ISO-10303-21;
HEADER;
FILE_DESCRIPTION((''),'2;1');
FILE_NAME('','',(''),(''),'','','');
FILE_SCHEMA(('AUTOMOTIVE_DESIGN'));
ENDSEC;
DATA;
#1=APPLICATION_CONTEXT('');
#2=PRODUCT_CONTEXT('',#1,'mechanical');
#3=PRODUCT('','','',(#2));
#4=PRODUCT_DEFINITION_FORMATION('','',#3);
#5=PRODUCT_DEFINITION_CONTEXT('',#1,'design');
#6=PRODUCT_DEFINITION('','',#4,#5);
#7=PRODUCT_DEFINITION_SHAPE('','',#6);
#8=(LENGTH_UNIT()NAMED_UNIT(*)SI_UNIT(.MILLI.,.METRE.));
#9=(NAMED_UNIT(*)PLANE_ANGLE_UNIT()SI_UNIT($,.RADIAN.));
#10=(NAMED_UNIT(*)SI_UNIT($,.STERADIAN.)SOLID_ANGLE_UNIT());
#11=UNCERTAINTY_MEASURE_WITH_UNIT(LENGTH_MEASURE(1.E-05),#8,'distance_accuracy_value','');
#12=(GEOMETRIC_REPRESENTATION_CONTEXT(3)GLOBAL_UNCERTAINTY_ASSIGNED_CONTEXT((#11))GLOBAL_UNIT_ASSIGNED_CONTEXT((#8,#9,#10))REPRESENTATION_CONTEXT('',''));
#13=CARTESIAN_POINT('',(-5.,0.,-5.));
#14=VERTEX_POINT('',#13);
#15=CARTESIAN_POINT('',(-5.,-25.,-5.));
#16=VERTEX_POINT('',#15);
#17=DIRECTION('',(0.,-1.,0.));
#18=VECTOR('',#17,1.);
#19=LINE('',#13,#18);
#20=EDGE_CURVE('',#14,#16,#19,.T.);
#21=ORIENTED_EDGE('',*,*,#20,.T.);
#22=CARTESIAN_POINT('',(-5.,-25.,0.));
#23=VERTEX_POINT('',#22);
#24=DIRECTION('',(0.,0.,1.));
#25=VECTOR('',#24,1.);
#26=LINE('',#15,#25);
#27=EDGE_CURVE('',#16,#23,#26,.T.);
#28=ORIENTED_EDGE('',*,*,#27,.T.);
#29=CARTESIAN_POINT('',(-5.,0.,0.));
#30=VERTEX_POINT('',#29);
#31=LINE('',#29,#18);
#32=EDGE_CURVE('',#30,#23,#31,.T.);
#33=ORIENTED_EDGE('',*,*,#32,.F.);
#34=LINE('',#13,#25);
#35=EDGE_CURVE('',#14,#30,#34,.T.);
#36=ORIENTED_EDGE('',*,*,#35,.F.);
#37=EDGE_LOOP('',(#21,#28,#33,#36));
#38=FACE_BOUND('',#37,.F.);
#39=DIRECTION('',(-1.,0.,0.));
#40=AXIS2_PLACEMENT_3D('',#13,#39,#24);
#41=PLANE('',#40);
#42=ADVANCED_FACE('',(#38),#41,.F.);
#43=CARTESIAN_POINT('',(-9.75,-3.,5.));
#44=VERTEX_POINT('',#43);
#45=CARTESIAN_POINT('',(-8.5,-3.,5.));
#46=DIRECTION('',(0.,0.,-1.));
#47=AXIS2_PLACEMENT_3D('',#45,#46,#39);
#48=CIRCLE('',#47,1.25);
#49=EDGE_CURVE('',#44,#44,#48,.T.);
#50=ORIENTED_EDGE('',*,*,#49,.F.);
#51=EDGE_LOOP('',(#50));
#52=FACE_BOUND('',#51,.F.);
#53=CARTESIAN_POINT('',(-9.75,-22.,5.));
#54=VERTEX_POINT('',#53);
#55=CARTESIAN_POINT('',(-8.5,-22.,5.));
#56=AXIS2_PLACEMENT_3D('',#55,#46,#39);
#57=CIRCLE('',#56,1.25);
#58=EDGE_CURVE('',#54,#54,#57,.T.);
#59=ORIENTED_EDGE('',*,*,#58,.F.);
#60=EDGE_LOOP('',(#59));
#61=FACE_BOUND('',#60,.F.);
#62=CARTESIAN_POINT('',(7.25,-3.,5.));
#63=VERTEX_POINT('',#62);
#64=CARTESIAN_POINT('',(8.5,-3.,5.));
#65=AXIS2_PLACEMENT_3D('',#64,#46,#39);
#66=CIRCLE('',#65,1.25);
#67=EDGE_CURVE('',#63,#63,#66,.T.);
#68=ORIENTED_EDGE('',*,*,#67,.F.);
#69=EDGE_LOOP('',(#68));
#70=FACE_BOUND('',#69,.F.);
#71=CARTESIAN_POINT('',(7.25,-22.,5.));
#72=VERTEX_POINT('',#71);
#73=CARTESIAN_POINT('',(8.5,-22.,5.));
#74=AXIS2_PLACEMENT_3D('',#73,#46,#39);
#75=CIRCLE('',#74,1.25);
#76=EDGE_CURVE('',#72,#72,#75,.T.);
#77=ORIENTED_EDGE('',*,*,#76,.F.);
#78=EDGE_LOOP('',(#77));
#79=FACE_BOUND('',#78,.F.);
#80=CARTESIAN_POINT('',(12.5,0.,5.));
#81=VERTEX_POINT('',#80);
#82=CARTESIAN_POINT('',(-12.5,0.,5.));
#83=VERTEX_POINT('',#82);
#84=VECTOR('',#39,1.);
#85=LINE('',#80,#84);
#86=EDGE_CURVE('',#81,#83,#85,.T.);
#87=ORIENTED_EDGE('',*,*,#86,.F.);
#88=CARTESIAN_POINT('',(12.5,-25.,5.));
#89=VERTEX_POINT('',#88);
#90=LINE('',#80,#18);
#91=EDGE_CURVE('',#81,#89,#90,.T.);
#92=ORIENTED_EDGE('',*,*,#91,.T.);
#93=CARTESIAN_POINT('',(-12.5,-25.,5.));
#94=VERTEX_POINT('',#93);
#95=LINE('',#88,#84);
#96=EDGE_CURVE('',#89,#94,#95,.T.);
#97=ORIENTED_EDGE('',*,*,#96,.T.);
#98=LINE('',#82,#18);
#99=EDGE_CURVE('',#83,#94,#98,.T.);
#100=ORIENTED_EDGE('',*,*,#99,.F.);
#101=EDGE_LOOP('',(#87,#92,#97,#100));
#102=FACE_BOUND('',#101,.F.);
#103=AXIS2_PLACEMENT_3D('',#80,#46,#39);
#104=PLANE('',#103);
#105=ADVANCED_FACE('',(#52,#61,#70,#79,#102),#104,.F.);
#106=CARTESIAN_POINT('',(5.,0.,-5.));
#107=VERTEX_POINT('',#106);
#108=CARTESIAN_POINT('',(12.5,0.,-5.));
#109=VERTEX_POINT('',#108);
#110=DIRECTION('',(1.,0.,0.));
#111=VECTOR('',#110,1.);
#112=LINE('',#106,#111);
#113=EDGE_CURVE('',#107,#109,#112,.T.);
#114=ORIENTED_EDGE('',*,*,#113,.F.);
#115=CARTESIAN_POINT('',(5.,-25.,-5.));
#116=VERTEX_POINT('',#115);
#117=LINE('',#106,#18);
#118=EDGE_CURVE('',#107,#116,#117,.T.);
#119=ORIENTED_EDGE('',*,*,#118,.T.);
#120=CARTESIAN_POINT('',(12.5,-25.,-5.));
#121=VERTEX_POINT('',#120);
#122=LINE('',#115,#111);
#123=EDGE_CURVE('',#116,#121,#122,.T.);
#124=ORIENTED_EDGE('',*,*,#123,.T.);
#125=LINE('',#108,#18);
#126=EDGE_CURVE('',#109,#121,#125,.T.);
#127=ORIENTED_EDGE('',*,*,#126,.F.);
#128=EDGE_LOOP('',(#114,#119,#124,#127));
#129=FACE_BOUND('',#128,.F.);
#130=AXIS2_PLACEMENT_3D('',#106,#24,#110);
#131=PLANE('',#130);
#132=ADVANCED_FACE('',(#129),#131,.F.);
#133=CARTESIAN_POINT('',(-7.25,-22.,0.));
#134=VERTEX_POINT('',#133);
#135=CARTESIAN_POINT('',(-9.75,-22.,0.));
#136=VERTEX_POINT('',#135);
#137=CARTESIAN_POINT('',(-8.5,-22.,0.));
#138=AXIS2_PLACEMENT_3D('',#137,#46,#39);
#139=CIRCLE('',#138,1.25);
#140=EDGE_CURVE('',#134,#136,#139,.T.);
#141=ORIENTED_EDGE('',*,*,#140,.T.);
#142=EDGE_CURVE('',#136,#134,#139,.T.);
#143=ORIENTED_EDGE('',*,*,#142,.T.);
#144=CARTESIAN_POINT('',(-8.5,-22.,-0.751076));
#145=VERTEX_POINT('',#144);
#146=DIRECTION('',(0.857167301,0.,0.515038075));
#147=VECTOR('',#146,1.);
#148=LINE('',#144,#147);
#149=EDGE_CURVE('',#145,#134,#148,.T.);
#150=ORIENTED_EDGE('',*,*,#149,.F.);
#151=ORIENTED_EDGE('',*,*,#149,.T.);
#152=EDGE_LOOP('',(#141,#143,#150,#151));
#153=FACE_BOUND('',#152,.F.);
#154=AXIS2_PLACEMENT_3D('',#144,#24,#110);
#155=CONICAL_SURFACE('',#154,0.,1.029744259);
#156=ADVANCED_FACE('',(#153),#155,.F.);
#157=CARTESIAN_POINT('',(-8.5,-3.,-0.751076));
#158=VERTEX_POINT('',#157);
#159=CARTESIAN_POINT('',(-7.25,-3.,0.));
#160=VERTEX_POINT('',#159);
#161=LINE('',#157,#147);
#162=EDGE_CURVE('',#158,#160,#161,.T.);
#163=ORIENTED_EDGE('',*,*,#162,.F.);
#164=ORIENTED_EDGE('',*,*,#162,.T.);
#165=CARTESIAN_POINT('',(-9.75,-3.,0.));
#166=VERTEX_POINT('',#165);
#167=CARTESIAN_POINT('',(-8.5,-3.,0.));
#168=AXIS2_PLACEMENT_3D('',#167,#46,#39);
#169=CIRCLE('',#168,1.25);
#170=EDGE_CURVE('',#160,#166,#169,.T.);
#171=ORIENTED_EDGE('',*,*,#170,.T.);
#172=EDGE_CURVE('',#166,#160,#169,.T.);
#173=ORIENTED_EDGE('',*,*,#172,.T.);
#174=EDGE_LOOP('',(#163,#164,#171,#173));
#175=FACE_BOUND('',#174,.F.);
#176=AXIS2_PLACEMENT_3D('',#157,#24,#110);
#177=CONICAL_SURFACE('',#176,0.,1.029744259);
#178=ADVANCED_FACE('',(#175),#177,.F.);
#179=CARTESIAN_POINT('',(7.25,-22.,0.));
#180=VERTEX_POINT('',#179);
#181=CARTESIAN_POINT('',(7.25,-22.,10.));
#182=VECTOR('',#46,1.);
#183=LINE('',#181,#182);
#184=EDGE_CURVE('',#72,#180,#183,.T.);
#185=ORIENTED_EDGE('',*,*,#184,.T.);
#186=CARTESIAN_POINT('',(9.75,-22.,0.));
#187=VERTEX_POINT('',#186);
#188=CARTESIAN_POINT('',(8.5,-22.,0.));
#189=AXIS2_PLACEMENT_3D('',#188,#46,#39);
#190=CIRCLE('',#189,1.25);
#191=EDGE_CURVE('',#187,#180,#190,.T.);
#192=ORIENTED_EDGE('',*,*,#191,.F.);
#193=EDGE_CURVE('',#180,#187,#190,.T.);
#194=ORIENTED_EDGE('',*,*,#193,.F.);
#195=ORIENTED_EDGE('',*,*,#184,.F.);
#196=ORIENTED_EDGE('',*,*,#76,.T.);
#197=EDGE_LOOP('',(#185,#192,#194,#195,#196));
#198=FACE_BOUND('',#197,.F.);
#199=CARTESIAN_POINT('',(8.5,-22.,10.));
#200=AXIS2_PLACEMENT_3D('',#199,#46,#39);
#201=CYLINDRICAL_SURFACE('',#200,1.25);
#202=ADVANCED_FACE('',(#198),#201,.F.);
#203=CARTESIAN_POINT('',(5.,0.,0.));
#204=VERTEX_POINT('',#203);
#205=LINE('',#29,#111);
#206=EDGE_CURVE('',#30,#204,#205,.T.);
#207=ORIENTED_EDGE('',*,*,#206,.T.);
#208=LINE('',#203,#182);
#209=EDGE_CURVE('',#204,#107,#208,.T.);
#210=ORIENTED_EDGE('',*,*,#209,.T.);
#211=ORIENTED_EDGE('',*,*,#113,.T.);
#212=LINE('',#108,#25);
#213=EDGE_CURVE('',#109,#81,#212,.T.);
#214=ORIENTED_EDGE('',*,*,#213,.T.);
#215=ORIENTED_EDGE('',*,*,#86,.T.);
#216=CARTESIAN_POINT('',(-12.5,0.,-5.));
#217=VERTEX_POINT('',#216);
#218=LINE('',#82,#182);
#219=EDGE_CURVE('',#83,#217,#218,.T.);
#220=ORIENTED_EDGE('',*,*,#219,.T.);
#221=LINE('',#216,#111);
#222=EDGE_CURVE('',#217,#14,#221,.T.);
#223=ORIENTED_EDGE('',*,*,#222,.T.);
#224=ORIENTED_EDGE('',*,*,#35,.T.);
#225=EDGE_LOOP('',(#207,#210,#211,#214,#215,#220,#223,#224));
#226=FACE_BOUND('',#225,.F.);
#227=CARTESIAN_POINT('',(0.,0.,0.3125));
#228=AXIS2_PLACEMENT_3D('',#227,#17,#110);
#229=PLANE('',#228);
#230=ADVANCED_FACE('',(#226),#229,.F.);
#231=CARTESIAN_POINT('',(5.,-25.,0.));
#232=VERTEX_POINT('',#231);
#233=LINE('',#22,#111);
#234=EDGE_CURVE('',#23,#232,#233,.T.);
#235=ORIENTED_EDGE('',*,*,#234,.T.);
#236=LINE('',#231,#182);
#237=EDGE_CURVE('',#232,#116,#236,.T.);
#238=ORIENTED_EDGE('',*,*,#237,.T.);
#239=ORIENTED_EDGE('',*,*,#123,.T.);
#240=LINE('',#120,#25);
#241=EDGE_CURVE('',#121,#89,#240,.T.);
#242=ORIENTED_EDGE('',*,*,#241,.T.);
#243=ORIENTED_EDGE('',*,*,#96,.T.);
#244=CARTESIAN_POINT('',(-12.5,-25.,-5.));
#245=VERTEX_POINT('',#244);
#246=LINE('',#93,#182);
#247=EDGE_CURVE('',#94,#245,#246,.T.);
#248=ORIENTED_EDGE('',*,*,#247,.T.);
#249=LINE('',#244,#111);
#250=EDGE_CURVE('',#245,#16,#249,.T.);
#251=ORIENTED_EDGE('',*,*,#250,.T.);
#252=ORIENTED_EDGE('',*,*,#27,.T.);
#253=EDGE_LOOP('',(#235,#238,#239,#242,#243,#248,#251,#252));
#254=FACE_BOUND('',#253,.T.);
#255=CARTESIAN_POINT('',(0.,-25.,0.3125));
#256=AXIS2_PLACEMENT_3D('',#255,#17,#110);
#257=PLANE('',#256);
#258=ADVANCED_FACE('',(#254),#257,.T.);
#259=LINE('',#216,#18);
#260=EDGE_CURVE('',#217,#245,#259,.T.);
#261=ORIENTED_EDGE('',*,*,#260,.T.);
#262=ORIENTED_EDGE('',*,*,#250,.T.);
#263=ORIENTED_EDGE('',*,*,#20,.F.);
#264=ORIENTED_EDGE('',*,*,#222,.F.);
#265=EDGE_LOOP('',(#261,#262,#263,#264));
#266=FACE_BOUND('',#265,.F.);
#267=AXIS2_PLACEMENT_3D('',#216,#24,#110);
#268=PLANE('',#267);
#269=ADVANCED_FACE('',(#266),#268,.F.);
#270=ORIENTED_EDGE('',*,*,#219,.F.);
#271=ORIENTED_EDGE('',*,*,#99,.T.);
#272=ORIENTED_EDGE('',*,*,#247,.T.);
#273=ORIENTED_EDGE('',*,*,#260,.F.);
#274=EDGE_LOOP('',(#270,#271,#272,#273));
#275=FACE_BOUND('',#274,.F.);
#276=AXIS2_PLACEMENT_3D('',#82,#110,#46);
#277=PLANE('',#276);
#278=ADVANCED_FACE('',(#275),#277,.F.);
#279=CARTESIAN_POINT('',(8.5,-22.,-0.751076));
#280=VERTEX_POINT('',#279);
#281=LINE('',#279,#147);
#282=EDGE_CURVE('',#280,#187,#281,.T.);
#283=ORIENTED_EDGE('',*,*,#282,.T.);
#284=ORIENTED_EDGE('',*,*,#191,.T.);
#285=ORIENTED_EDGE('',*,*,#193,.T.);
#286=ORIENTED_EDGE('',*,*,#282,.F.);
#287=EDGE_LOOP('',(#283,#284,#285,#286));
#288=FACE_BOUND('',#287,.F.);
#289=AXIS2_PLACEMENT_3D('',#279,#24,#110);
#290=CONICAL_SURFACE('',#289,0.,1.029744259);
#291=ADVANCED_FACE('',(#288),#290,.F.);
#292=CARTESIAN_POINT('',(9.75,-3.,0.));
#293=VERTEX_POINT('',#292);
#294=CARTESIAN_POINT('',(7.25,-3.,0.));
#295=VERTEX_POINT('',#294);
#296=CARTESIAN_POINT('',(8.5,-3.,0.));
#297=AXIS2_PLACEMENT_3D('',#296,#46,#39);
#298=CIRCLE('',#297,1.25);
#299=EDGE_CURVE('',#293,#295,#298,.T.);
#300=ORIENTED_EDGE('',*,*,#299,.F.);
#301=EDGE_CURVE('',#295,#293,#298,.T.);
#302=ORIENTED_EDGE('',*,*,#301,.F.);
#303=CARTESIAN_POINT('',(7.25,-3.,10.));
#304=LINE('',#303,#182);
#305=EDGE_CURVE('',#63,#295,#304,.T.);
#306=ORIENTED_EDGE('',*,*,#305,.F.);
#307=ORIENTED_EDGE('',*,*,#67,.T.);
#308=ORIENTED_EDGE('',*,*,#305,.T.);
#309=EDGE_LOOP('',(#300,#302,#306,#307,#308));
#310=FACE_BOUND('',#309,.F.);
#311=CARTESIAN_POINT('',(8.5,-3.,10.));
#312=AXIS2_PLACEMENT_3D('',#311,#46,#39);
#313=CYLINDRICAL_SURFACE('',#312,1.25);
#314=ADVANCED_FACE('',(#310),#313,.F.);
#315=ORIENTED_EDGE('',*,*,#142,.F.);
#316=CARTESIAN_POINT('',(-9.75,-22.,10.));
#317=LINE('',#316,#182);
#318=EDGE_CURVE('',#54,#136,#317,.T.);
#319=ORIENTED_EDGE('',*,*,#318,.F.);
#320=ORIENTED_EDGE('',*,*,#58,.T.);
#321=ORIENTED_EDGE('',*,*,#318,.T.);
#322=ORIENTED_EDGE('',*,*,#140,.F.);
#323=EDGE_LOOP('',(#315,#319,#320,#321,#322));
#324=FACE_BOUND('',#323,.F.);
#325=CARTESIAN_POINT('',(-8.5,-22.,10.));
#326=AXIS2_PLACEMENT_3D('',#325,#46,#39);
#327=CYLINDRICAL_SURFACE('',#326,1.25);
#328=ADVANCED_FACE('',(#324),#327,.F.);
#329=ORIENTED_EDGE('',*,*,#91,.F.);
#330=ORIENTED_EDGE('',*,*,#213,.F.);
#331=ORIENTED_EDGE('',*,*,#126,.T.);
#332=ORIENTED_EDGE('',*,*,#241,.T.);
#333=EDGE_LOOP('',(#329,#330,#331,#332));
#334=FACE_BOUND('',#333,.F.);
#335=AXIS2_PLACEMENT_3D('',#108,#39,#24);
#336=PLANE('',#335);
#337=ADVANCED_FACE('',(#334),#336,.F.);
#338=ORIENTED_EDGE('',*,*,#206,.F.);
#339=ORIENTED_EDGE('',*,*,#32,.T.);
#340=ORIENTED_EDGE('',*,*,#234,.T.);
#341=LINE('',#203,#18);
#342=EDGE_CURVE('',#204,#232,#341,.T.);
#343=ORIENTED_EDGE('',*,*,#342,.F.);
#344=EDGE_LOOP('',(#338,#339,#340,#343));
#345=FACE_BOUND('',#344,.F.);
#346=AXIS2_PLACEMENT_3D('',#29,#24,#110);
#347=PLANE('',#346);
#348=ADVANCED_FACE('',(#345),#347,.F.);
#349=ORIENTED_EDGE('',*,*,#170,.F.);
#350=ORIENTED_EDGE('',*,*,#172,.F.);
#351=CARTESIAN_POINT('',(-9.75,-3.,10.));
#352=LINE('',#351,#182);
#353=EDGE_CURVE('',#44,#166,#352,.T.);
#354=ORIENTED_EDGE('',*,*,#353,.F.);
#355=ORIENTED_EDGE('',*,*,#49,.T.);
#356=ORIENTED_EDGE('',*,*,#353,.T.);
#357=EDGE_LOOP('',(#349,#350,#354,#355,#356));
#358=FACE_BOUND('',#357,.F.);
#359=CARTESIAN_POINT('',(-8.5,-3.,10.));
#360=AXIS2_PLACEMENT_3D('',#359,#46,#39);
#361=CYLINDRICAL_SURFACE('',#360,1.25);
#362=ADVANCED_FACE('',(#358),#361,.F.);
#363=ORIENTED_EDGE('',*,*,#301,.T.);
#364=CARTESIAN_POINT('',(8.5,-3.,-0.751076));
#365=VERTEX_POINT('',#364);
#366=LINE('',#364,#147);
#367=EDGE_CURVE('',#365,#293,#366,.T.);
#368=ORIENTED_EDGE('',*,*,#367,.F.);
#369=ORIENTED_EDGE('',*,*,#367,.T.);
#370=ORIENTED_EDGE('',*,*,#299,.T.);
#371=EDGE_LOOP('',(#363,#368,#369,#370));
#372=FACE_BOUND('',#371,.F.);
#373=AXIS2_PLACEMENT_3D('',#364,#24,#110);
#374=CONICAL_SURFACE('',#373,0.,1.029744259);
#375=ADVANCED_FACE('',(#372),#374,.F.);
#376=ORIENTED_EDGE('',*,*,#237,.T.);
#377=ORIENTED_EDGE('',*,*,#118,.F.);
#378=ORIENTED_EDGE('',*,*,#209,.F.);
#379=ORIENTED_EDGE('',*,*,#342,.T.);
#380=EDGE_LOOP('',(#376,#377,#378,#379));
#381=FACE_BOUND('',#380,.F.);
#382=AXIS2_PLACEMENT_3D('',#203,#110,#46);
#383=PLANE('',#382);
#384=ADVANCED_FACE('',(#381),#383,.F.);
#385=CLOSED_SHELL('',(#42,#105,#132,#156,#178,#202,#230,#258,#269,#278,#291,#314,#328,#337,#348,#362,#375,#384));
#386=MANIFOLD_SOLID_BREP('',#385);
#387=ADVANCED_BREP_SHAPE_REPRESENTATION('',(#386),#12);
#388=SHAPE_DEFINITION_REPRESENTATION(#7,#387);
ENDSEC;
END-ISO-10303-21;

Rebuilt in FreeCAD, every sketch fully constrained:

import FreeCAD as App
import Part
import Sketcher

V = App.Vector
Q = App.Units.Quantity


def add_polygon(sketch, points):
    """Adds a closed chain of lines whose ends are joined by coincident constraints."""
    first, n = sketch.GeometryCount, len(points)
    for a, b in zip(points, points[1:] + points[:1]):
        sketch.addGeometry(Part.LineSegment(App.Vector(*a, 0), App.Vector(*b, 0)), False)
    for i in range(n):
        sketch.addConstraint(Sketcher.Constraint("Coincident", first + i, 2, first + (i + 1) % n, 1))

doc = App.newDocument("Part")
body = doc.addObject("PartDesign::Body", "Body")

sketch1 = doc.addObject("Sketcher::SketchObject", "Sketch")
body.addObject(sketch1)
sketch1.AttachmentSupport = (doc.XZ_Plane, [""])
sketch1.MapMode = "FlatFace"
add_polygon(sketch1, [(-5, 0), (5, 0), (5, -5), (12.5, -5), (12.5, 5), (-12.5, 5), (-12.5, -5), (-5, -5)])
sketch1.addConstraint(Sketcher.Constraint("Horizontal", 0))
sketch1.addConstraint(Sketcher.Constraint("Vertical", 1))
sketch1.addConstraint(Sketcher.Constraint("Horizontal", 2))
sketch1.addConstraint(Sketcher.Constraint("Vertical", 3))
sketch1.addConstraint(Sketcher.Constraint("Horizontal", 4))
sketch1.addConstraint(Sketcher.Constraint("Vertical", 5))
sketch1.addConstraint(Sketcher.Constraint("Horizontal", 6))
sketch1.addConstraint(Sketcher.Constraint("Vertical", 7))
sketch1.addConstraint(Sketcher.Constraint("Symmetric", 2, 2, 4, 2, -1, 1))
sketch1.addConstraint(Sketcher.Constraint("Symmetric", 0, 2, 7, 2, -1, 1))
sketch1.addConstraint(Sketcher.Constraint("Horizontal", 2, 2, 5, 2))
sketch1.addConstraint(Sketcher.Constraint("Equal", 0, 3))
sketch1.addConstraint(Sketcher.Constraint("DistanceX", 0, 1, 0, 2, Q("10 mm")))
sketch1.addConstraint(Sketcher.Constraint("DistanceX", 4, 2, 4, 1, Q("25 mm")))
pad1 = doc.addObject("PartDesign::Pad", "Pad")
body.addObject(pad1)
pad1.Profile = sketch1
pad1.Length = 25

sketch2 = doc.addObject("Sketcher::SketchObject", "Sketch001")
body.addObject(sketch2)
sketch2.AttachmentSupport = (doc.XY_Plane, [""])
sketch2.MapMode = "FlatFace"
sketch2.AttachmentOffset = App.Placement(V(0, 0, 5), App.Rotation())
sketch2.addGeometry(Part.Circle(V(-8.5, -3, 0), V(0, 0, 1), 1.25), False)
sketch2.addGeometry(Part.Circle(V(8.5, -3, 0), V(0, 0, 1), 1.25), False)
sketch2.addGeometry(Part.Circle(V(-8.5, -22, 0), V(0, 0, 1), 1.25), False)
sketch2.addGeometry(Part.Circle(V(8.5, -22, 0), V(0, 0, 1), 1.25), False)
sketch2.addConstraint(Sketcher.Constraint("Equal", 0, 1))
sketch2.addConstraint(Sketcher.Constraint("Equal", 1, 2))
sketch2.addConstraint(Sketcher.Constraint("Equal", 2, 3))
sketch2.addConstraint(Sketcher.Constraint("Symmetric", 0, 3, 1, 3, -2))
sketch2.addConstraint(Sketcher.Constraint("Symmetric", 2, 3, 3, 3, -2))
sketch2.addConstraint(Sketcher.Constraint("Vertical", 0, 3, 2, 3))
sketch2.addConstraint(Sketcher.Constraint("Diameter", 0, Q("2.5 mm")))
sketch2.addConstraint(Sketcher.Constraint("DistanceY", 0, 3, -1, 1, Q("3 mm")))
sketch2.addConstraint(Sketcher.Constraint("DistanceY", 2, 3, -1, 1, Q("22 mm")))
sketch2.addConstraint(Sketcher.Constraint("DistanceX", 0, 3, 1, 3, Q("17 mm")))
doc.recompute()
hole = doc.addObject("PartDesign::Hole", "Hole")
body.addObject(hole)
hole.Profile = sketch2
hole.ThreadType = "None"
hole.Diameter = 2.5
hole.DepthType = "Dimension"
hole.Depth = 5
hole.DrillPoint = "Angled"
hole.DrillPointAngle = 118

doc.recompute()
